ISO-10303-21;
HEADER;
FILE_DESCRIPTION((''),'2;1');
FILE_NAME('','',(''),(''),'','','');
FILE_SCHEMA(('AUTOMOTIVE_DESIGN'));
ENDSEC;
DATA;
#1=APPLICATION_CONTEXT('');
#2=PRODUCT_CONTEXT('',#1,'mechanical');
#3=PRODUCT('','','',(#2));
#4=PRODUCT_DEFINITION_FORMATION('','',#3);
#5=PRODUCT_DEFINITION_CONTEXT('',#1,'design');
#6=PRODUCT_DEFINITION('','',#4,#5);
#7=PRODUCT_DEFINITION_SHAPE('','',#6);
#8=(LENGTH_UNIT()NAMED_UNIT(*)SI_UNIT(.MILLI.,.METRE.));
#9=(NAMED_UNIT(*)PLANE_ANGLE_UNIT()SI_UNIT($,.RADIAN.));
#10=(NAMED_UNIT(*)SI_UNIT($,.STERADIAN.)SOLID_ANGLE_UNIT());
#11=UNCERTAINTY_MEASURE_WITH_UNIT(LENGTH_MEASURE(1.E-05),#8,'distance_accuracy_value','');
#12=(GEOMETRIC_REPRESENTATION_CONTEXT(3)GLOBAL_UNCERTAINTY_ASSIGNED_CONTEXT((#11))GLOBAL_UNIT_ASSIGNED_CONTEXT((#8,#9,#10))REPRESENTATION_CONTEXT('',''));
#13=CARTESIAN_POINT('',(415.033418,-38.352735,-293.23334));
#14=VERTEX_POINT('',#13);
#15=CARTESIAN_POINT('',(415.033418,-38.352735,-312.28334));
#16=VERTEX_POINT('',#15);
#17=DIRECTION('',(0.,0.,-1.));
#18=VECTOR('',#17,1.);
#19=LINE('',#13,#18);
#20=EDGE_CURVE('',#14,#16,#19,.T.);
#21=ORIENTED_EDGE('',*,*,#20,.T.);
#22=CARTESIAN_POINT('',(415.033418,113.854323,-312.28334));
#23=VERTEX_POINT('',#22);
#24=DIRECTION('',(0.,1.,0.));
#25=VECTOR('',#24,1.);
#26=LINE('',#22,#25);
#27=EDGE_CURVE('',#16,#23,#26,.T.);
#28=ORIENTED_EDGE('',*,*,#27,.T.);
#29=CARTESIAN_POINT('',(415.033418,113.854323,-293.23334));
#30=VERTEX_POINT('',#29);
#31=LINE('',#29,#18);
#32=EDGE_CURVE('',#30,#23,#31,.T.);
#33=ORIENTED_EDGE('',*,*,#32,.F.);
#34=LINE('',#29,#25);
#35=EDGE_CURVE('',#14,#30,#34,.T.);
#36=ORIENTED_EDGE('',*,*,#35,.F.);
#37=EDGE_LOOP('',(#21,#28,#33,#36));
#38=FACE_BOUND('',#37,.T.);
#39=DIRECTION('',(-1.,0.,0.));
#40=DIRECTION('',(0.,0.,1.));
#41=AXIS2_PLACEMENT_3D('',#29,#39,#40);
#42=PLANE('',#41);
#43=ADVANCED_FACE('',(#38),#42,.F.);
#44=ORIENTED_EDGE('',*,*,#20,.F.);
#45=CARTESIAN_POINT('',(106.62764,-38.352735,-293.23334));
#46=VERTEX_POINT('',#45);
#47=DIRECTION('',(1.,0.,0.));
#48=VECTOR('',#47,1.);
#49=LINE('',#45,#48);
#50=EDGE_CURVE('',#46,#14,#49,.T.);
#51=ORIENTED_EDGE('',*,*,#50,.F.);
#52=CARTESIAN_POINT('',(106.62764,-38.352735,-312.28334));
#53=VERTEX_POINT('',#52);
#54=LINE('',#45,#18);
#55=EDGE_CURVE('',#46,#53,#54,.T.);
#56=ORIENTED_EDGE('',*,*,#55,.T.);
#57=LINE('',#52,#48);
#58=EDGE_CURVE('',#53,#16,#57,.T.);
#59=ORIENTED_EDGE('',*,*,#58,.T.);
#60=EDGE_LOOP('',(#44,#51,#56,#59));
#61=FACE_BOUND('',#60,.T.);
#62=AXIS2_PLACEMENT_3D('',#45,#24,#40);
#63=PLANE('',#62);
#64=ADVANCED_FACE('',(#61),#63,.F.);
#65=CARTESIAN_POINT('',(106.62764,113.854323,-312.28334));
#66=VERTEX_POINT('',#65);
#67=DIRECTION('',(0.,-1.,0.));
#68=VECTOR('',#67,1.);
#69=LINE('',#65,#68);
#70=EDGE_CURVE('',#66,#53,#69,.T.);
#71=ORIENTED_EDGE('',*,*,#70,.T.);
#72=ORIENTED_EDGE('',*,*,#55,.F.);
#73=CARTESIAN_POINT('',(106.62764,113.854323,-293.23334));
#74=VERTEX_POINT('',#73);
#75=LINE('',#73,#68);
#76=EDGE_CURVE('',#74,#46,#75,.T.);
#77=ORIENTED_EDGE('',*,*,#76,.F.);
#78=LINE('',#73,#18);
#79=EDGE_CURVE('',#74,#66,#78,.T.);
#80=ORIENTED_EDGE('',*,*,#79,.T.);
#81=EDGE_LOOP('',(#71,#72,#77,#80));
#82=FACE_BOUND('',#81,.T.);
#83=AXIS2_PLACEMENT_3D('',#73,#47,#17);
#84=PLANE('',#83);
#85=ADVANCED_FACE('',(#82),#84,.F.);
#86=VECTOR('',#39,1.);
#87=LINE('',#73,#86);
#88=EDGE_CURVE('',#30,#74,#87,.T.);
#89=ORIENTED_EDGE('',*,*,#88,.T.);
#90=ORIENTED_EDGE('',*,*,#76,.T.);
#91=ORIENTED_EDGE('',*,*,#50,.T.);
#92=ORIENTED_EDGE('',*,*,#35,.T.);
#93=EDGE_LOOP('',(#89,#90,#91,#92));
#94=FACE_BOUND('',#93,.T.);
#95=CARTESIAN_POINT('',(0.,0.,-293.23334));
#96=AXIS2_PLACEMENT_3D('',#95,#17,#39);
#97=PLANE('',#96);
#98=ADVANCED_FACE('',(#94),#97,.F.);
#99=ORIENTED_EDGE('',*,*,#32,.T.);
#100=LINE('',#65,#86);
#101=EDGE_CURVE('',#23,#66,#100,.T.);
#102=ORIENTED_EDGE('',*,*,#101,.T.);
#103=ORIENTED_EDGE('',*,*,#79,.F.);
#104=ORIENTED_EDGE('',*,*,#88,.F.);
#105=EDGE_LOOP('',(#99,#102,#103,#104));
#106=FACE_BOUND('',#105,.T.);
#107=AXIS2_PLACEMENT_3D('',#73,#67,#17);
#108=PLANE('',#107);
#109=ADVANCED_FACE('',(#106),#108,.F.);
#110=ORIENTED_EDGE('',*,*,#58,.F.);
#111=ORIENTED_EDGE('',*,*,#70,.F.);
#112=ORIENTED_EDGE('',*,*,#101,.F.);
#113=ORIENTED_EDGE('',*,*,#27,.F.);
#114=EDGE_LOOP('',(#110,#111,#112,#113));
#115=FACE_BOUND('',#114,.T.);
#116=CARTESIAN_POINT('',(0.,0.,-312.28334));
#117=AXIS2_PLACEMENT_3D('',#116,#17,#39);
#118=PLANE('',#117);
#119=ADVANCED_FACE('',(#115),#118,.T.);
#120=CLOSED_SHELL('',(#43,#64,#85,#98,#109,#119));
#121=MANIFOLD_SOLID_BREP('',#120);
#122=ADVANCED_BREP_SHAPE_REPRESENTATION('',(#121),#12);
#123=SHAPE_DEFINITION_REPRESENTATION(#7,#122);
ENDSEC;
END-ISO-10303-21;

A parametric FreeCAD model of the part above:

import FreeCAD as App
import Part
import Sketcher

V = App.Vector


def add_polygon(sketch, points):
    """Adds a closed chain of lines whose ends are joined by coincident constraints."""
    first, n = sketch.GeometryCount, len(points)
    for a, b in zip(points, points[1:] + points[:1]):
        sketch.addGeometry(Part.LineSegment(App.Vector(*a, 0), App.Vector(*b, 0)), False)
    for i in range(n):
        sketch.addConstraint(Sketcher.Constraint("Coincident", first + i, 2, first + (i + 1) % n, 1))

doc = App.newDocument("Part")
params = doc.addObject("Spreadsheet::Sheet", "Params")
for row, (alias, value) in enumerate([
    ("pad1_length", "0.75 in"),
], start=1):
    params.set(f"A{row}", alias)
    params.set(f"B{row}", "=" + value)
    params.setAlias(f"B{row}", alias)

body = doc.addObject("PartDesign::Body", "Body")

# Sketch on XY plane
sketch1 = body.newObject("Sketcher::SketchObject", "Sketch")
sketch1.AttachmentSupport = (doc.getObject("XY_Plane"), [""])
sketch1.MapMode = "FlatFace"
sketch1.AttachmentOffset = App.Placement(V(0, 0, -312.28334), App.Rotation())
add_polygon(sketch1, [(107, 114), (107, -38), (415, -38), (415, 114)])  # lines 0-3
sketch1.addConstraint([
    Sketcher.Constraint("Vertical", 0),
    Sketcher.Constraint("Horizontal", 1),
    Sketcher.Constraint("Vertical", 2),
    Sketcher.Constraint("Horizontal", 3),
    Sketcher.Constraint("DistanceX", 1, 1, 1, 2, 308.405778),
    Sketcher.Constraint("DistanceY", 0, 2, 0, 1, 152.207058),
    Sketcher.Constraint("DistanceX", -1, 1, 0, 2, 106.62764),
    Sketcher.Constraint("DistanceY", 0, 2, -1, 1, 38.352735),
])
pad1 = body.newObject("PartDesign::Pad", "Pad")
pad1.Profile = sketch1
pad1.setExpression("Length", "Params.pad1_length")

doc.recompute()
